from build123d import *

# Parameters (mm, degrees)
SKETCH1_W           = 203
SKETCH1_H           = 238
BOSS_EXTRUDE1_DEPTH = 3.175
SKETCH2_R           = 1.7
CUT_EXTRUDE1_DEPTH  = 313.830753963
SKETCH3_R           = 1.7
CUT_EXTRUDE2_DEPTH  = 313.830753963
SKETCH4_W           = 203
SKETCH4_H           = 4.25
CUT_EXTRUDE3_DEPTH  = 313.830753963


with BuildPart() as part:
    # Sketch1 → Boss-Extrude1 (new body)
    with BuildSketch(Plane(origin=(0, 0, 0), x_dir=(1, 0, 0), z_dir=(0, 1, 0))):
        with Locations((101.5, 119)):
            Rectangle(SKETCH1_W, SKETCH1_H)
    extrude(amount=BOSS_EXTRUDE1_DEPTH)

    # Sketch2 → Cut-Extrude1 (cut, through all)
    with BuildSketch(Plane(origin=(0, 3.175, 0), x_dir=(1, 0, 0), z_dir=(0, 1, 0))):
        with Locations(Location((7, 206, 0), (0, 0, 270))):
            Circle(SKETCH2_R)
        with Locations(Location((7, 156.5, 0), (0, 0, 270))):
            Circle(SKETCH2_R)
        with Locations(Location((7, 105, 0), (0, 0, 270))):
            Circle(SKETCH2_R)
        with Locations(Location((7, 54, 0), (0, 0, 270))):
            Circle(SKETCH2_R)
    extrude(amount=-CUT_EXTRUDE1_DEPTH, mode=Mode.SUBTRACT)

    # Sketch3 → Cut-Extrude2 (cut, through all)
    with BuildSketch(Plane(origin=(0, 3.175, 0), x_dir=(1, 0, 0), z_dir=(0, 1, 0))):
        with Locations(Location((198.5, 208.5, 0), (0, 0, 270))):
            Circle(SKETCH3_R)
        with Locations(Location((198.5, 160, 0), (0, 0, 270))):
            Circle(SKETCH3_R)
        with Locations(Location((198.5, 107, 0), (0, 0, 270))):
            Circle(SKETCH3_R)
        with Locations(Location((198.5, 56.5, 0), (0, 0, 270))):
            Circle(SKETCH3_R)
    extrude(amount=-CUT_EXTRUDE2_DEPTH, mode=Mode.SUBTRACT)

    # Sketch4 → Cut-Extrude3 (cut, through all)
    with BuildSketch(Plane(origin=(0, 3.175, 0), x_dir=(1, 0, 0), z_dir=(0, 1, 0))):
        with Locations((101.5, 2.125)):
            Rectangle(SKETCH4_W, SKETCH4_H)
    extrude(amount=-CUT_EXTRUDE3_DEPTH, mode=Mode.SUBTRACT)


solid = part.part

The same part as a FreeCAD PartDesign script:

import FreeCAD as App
import Part
import Sketcher
from FreeCAD import Vector

doc = App.newDocument("Part")
body = doc.addObject("PartDesign::Body", "Body")

sketch1 = doc.addObject("Sketcher::SketchObject", "Sketch")
body.addObject(sketch1)
sketch1.AttachmentSupport = (doc.XZ_Plane, [""])
sketch1.MapMode = "FlatFace"
sketch1.addGeometry(Part.LineSegment(Vector(0, -238, 0), Vector(0, 0, 0)), False)
sketch1.addGeometry(Part.LineSegment(Vector(0, 0, 0), Vector(203, 0, 0)), False)
sketch1.addGeometry(Part.LineSegment(Vector(203, 0, 0), Vector(203, -238, 0)), False)
sketch1.addGeometry(Part.LineSegment(Vector(203, -238, 0), Vector(0, -238, 0)), False)
sketch1.addConstraint(Sketcher.Constraint("Coincident", 0, 2, 1, 1))
sketch1.addConstraint(Sketcher.Constraint("Coincident", 1, 2, 2, 1))
sketch1.addConstraint(Sketcher.Constraint("Coincident", 2, 2, 3, 1))
sketch1.addConstraint(Sketcher.Constraint("Coincident", 3, 2, 0, 1))
sketch1.addConstraint(Sketcher.Constraint("Vertical", 0))
sketch1.addConstraint(Sketcher.Constraint("Horizontal", 1))
sketch1.addConstraint(Sketcher.Constraint("Vertical", 2))
sketch1.addConstraint(Sketcher.Constraint("Horizontal", 3))
sketch1.addConstraint(Sketcher.Constraint("Coincident", 0, 2, -1, 1))
sketch1.addConstraint(Sketcher.Constraint("DistanceX", 1, 1, 1, 2, 203.0))
sketch1.addConstraint(Sketcher.Constraint("DistanceY", 0, 1, 0, 2, 238.0))
pad1 = doc.addObject("PartDesign::Pad", "Pad")
body.addObject(pad1)
pad1.Profile = sketch1
pad1.Length = 3.175
pad1.Reversed = True

sketch2 = doc.addObject("Sketcher::SketchObject", "Sketch001")
body.addObject(sketch2)
sketch2.AttachmentSupport = (doc.XZ_Plane, [""])
sketch2.MapMode = "FlatFace"
sketch2.AttachmentOffset = App.Placement(Vector(0, 0, -3.175), App.Rotation())
sketch2.addGeometry(Part.Circle(Vector(7, -206, 0), Vector(0, 0, 1), 1.7), False)
sketch2.addGeometry(Part.Circle(Vector(7, -156.5, 0), Vector(0, 0, 1), 1.7), False)
sketch2.addGeometry(Part.Circle(Vector(7, -105, 0), Vector(0, 0, 1), 1.7), False)
sketch2.addGeometry(Part.Circle(Vector(7, -54, 0), Vector(0, 0, 1), 1.7), False)
sketch2.addConstraint(Sketcher.Constraint("Equal", 0, 1))
sketch2.addConstraint(Sketcher.Constraint("Equal", 1, 2))
sketch2.addConstraint(Sketcher.Constraint("Equal", 2, 3))
sketch2.addConstraint(Sketcher.Constraint("Vertical", 0, 3, 1, 3))
sketch2.addConstraint(Sketcher.Constraint("Vertical", 1, 3, 2, 3))
sketch2.addConstraint(Sketcher.Constraint("Vertical", 2, 3, 3, 3))
sketch2.addConstraint(Sketcher.Constraint("Diameter", 0, 3.4))
sketch2.addConstraint(Sketcher.Constraint("DistanceX", -1, 1, 0, 3, 7.0))
sketch2.addConstraint(Sketcher.Constraint("DistanceY", 0, 3, -1, 1, 206.0))
sketch2.addConstraint(Sketcher.Constraint("DistanceY", 2, 3, -1, 1, 105.0))
sketch2.addConstraint(Sketcher.Constraint("DistanceY", 3, 3, -1, 1, 54.0))
sketch2.addConstraint(Sketcher.Constraint("DistanceY", 1, 3, -1, 1, 156.5))
pocket1 = doc.addObject("PartDesign::Pocket", "Pocket")
body.addObject(pocket1)
pocket1.Profile = sketch2
pocket1.Type = "ThroughAll"
pocket1.Reversed = True

sketch3 = doc.addObject("Sketcher::SketchObject", "Sketch002")
body.addObject(sketch3)
sketch3.AttachmentSupport = (doc.XZ_Plane, [""])
sketch3.MapMode = "FlatFace"
sketch3.AttachmentOffset = App.Placement(Vector(0, 0, -3.175), App.Rotation())
sketch3.addGeometry(Part.Circle(Vector(198.5, -208.5, 0), Vector(0, 0, 1), 1.7), False)
sketch3.addGeometry(Part.Circle(Vector(198.5, -160, 0), Vector(0, 0, 1), 1.7), False)
sketch3.addGeometry(Part.Circle(Vector(198.5, -107, 0), Vector(0, 0, 1), 1.7), False)
sketch3.addGeometry(Part.Circle(Vector(198.5, -56.5, 0), Vector(0, 0, 1), 1.7), False)
sketch3.addConstraint(Sketcher.Constraint("Equal", 0, 1))
sketch3.addConstraint(Sketcher.Constraint("Equal", 1, 2))
sketch3.addConstraint(Sketcher.Constraint("Equal", 2, 3))
sketch3.addConstraint(Sketcher.Constraint("Vertical", 0, 3, 1, 3))
sketch3.addConstraint(Sketcher.Constraint("Vertical", 1, 3, 2, 3))
sketch3.addConstraint(Sketcher.Constraint("Vertical", 2, 3, 3, 3))
sketch3.addConstraint(Sketcher.Constraint("Diameter", 0, 3.4))
sketch3.addConstraint(Sketcher.Constraint("DistanceY", 1, 3, -1, 1, 160.0))
sketch3.addConstraint(Sketcher.Constraint("DistanceY", 2, 3, -1, 1, 107.0))
sketch3.addConstraint(Sketcher.Constraint("DistanceY", 0, 3, 3, 3, 152.0))
sketch3.addConstraint(Sketcher.Constraint("DistanceX", -1, 1, 0, 3, 198.5))
sketch3.addConstraint(Sketcher.Constraint("DistanceY", 0, 3, -1, 1, 208.5))
pocket2 = doc.addObject("PartDesign::Pocket", "Pocket001")
body.addObject(pocket2)
pocket2.Profile = sketch3
pocket2.Type = "ThroughAll"
pocket2.Reversed = True

sketch4 = doc.addObject("Sketcher::SketchObject", "Sketch003")
body.addObject(sketch4)
sketch4.AttachmentSupport = (doc.XZ_Plane, [""])
sketch4.MapMode = "FlatFace"
sketch4.AttachmentOffset = App.Placement(Vector(0, 0, -3.175), App.Rotation())
sketch4.addGeometry(Part.LineSegment(Vector(0, -4.2, 0), Vector(0, 0, 0)), False)
sketch4.addGeometry(Part.LineSegment(Vector(0, 0, 0), Vector(203, 0, 0)), False)
sketch4.addGeometry(Part.LineSegment(Vector(203, 0, 0), Vector(203, -4.2, 0)), False)
sketch4.addGeometry(Part.LineSegment(Vector(203, -4.2, 0), Vector(0, -4.2, 0)), False)
sketch4.addConstraint(Sketcher.Constraint("Coincident", 0, 2, 1, 1))
sketch4.addConstraint(Sketcher.Constraint("Coincident", 1, 2, 2, 1))
sketch4.addConstraint(Sketcher.Constraint("Coincident", 2, 2, 3, 1))
sketch4.addConstraint(Sketcher.Constraint("Coincident", 3, 2, 0, 1))
sketch4.addConstraint(Sketcher.Constraint("Vertical", 0))
sketch4.addConstraint(Sketcher.Constraint("Horizontal", 1))
sketch4.addConstraint(Sketcher.Constraint("Vertical", 2))
sketch4.addConstraint(Sketcher.Constraint("Horizontal", 3))
sketch4.addConstraint(Sketcher.Constraint("Coincident", 0, 2, -1, 1))
sketch4.addConstraint(Sketcher.Constraint("DistanceX", 1, 1, 1, 2, 203.0))
sketch4.addConstraint(Sketcher.Constraint("DistanceY", 0, 1, 0, 2, 4.25))
pocket3 = doc.addObject("PartDesign::Pocket", "Pocket002")
body.addObject(pocket3)
pocket3.Profile = sketch4
pocket3.Type = "ThroughAll"
pocket3.Reversed = True

doc.recompute()
